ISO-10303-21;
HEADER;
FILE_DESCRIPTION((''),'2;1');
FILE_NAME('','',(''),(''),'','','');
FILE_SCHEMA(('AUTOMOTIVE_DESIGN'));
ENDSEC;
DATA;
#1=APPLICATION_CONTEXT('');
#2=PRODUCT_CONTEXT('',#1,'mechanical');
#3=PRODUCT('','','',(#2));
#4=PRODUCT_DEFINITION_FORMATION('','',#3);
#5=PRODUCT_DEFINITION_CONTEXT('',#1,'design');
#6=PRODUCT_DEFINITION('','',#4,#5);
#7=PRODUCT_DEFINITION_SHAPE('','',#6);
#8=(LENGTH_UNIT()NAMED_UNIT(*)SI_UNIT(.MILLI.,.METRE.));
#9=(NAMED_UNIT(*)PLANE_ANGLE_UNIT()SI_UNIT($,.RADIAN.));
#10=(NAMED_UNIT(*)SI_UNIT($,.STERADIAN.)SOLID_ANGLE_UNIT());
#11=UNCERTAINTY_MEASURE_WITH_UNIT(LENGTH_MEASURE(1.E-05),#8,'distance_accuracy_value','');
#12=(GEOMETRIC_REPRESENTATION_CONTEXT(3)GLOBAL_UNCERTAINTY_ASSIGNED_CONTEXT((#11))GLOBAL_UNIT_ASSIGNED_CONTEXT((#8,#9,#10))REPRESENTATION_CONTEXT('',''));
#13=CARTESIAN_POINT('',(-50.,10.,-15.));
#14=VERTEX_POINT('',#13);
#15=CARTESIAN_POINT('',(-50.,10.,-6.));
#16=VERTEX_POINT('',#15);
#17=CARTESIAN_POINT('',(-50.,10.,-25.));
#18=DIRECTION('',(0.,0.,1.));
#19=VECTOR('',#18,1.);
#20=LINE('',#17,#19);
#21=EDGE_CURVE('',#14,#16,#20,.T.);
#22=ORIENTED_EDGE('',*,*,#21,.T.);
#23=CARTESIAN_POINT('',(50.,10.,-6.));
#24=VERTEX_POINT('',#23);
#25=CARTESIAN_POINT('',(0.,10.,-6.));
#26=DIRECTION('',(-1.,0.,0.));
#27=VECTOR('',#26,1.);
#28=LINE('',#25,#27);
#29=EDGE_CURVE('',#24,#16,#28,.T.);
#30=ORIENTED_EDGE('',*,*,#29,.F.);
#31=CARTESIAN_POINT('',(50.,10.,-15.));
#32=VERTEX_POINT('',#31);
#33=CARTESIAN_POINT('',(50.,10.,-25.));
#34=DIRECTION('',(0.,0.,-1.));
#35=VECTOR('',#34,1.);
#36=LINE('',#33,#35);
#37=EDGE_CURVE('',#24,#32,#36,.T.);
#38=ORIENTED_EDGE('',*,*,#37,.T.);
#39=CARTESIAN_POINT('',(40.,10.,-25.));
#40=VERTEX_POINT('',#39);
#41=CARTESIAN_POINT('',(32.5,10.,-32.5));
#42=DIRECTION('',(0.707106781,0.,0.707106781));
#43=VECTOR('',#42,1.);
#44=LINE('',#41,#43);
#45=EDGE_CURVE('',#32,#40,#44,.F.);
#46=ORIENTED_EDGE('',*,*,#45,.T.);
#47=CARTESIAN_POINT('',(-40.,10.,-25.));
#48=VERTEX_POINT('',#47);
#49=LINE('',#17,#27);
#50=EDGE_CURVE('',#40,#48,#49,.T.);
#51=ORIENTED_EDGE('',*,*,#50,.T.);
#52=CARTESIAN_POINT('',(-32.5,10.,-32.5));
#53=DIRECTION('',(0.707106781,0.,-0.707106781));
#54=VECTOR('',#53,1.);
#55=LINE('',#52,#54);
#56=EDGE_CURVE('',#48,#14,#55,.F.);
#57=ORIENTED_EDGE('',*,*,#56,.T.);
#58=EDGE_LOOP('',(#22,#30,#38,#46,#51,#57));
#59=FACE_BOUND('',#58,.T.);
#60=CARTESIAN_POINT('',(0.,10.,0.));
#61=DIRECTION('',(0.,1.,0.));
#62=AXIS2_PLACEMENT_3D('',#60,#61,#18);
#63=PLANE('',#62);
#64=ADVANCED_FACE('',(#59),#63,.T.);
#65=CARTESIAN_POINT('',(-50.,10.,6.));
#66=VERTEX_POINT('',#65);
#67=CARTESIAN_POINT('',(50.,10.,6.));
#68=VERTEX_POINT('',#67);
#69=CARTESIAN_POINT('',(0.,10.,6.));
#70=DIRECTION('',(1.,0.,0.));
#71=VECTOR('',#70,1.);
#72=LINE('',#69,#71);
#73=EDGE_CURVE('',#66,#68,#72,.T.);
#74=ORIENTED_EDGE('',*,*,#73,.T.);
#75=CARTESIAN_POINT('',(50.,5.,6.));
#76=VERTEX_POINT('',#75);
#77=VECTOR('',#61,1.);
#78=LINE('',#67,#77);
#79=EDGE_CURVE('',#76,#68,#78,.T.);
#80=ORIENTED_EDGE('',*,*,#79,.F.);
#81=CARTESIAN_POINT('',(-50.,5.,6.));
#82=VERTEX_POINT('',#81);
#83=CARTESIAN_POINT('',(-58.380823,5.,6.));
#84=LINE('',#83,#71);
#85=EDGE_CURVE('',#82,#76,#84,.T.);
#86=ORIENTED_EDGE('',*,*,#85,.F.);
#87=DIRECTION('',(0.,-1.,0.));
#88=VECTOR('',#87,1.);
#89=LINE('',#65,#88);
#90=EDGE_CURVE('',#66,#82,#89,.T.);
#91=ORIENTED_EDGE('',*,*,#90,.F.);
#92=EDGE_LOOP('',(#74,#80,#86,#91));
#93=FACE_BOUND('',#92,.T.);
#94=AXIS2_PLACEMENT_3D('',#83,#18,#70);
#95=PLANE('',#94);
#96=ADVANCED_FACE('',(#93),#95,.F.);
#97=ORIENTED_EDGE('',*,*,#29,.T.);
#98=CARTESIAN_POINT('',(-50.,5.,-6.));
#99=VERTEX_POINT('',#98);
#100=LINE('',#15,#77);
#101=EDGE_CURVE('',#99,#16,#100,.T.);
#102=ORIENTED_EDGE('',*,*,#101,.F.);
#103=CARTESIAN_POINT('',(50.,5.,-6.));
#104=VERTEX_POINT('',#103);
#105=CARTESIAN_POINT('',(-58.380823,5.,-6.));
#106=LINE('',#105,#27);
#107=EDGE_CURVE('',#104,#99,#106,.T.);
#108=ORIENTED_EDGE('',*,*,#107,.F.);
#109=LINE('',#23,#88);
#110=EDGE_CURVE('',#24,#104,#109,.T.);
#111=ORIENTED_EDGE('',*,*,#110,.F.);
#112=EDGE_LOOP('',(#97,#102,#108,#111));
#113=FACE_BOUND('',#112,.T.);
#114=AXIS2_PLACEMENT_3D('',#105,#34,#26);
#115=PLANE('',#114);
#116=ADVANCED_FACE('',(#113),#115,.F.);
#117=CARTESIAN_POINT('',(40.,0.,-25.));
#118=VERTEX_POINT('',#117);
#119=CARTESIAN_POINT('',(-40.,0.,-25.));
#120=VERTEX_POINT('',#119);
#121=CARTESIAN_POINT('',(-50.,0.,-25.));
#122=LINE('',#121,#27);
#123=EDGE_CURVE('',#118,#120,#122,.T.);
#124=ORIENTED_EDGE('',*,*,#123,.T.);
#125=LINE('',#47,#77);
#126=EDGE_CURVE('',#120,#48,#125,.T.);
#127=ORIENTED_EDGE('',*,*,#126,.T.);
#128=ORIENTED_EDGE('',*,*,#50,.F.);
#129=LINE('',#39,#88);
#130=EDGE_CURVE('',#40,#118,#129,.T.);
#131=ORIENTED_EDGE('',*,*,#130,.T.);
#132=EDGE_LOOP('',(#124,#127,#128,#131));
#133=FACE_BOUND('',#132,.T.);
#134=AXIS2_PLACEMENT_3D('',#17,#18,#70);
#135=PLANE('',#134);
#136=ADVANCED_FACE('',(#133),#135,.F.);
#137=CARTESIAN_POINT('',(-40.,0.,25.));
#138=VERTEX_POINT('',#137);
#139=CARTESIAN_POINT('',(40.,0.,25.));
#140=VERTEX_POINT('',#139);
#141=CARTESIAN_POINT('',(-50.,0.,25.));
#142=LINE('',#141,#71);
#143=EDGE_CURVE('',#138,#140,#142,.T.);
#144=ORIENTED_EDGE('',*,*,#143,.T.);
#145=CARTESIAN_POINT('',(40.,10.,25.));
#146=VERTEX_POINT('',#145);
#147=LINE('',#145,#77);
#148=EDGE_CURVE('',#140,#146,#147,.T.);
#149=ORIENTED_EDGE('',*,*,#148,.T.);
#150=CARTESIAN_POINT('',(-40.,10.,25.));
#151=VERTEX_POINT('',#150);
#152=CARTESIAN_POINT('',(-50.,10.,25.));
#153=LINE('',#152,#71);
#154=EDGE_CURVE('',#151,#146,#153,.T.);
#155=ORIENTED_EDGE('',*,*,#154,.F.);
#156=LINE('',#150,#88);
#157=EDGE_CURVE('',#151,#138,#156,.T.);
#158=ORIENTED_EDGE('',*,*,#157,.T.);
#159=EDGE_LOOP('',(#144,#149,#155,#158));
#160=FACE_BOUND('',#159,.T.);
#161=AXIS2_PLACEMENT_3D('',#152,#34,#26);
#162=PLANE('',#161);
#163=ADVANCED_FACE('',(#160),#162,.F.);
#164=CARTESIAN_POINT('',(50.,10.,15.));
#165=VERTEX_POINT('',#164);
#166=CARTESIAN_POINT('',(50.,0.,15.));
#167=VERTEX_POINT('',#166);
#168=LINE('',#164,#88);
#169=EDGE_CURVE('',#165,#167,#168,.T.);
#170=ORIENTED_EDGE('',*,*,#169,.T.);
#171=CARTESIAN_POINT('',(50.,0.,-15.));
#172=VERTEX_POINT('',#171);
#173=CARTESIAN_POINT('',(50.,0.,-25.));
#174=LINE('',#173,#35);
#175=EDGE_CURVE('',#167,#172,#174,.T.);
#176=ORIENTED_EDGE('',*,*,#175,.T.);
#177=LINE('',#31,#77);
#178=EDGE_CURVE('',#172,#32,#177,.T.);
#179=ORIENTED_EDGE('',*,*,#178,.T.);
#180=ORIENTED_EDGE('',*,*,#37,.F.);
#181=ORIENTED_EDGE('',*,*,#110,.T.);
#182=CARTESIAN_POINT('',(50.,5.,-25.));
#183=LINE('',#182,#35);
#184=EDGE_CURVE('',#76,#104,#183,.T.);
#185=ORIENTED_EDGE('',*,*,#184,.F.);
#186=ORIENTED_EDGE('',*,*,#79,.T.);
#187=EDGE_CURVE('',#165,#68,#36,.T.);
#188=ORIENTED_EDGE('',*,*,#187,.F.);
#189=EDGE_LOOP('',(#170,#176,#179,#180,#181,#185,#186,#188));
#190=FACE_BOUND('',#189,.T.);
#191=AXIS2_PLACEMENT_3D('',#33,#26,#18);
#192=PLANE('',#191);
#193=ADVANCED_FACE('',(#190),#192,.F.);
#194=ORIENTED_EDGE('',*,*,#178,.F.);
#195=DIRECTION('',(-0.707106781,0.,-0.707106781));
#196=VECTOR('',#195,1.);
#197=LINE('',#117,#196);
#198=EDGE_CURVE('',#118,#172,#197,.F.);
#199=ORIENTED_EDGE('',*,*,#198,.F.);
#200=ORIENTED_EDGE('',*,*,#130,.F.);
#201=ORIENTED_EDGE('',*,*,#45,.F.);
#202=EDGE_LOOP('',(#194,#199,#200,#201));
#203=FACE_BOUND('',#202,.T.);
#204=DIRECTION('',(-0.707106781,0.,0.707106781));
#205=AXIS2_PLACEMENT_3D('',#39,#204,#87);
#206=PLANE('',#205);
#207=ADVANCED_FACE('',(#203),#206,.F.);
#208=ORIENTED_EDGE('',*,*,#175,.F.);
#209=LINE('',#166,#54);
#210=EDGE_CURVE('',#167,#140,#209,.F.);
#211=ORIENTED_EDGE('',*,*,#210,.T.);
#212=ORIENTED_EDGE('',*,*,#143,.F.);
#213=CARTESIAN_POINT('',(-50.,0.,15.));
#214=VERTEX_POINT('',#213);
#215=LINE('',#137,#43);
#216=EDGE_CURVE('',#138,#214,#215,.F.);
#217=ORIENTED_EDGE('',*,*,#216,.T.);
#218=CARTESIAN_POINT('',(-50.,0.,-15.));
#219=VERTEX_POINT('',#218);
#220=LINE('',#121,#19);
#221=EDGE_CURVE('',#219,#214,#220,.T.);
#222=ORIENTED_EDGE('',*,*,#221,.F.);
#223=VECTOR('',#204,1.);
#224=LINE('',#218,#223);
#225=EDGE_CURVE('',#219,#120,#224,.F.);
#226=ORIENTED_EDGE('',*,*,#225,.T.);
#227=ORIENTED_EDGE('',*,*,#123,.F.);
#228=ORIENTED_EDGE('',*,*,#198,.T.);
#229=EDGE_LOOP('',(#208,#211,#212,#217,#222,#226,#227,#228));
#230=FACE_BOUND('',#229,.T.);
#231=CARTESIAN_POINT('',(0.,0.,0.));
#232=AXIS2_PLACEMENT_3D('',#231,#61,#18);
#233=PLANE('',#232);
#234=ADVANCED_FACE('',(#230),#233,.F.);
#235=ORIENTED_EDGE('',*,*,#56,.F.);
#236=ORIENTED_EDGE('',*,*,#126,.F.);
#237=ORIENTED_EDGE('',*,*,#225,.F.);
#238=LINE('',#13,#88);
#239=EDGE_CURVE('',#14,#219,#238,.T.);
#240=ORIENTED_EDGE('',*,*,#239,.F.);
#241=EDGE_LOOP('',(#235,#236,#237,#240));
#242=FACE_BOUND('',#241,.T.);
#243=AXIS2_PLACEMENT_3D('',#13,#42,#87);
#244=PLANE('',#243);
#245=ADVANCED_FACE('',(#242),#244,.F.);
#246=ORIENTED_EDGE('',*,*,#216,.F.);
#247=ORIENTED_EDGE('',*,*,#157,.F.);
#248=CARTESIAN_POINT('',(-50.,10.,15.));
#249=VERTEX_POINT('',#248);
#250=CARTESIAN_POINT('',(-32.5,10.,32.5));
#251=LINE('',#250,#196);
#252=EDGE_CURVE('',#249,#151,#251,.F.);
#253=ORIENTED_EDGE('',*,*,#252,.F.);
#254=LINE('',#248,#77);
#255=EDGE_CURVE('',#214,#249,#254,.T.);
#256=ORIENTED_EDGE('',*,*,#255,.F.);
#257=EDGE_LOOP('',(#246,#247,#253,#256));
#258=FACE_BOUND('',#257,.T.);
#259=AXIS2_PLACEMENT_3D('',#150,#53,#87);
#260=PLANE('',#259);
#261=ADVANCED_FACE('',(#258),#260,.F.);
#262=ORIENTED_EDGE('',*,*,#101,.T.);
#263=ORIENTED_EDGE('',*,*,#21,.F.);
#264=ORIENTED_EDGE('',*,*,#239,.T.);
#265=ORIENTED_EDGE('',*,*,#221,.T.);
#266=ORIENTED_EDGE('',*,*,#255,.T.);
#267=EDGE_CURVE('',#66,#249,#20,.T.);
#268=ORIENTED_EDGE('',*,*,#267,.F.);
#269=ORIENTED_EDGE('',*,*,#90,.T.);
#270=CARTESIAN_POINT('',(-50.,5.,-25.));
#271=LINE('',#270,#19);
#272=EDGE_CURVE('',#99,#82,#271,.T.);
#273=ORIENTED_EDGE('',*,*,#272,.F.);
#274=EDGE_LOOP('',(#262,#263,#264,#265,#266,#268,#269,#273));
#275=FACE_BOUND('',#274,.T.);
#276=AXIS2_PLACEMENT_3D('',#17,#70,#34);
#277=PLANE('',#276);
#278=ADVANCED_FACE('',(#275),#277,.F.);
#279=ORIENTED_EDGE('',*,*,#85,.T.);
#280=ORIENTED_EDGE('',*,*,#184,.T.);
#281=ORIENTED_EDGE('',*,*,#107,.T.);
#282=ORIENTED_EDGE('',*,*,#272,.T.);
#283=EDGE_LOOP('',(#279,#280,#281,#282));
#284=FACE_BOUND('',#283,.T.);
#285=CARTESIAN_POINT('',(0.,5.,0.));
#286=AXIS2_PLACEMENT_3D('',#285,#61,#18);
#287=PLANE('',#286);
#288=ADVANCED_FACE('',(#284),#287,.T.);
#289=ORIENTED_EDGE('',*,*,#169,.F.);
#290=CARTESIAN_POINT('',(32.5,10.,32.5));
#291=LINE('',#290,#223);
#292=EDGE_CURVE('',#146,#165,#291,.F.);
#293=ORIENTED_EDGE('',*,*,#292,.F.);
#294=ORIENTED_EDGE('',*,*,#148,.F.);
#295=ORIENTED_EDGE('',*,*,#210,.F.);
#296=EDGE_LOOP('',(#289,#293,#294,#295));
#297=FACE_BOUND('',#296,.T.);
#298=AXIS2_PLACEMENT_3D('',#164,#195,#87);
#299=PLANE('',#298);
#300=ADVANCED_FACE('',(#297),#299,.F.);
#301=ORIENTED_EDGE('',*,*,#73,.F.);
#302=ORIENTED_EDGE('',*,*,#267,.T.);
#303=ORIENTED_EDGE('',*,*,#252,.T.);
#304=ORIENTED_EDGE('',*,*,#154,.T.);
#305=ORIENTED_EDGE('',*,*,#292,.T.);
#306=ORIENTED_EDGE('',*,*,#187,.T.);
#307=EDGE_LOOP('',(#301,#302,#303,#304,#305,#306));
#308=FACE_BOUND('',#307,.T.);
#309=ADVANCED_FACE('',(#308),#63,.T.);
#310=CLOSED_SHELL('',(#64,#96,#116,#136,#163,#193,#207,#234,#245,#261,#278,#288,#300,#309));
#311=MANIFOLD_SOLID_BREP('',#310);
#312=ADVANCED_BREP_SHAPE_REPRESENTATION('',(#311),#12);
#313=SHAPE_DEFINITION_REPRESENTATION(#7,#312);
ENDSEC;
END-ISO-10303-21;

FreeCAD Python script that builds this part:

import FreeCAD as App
import Part
import Sketcher

V = App.Vector
Q = App.Units.Quantity


def edges_at(feature, points):
    """Names of the edges that pass closest to the given points."""
    edges = feature.Shape.Edges
    near = lambda p: min(range(len(edges)), key=lambda i: edges[i].distToShape(Part.Vertex(*p))[0])
    return sorted({f"Edge{near(p) + 1}" for p in points})

doc = App.newDocument("Part")
body = doc.addObject("PartDesign::Body", "Body")

sketch1 = doc.addObject("Sketcher::SketchObject", "Sketch")
body.addObject(sketch1)
sketch1.AttachmentSupport = (doc.XZ_Plane, [""])
sketch1.MapMode = "FlatFace"
sketch1.addGeometry([
    Part.LineSegment(V(-50, -25, 0), V(-50, 25, 0)),
    Part.LineSegment(V(-50, 25, 0), V(50, 25, 0)),
    Part.LineSegment(V(50, 25, 0), V(50, -25, 0)),
    Part.LineSegment(V(50, -25, 0), V(-50, -25, 0)),
], False)
sketch1.addConstraint([
    Sketcher.Constraint("Coincident", 0, 2, 1, 1),
    Sketcher.Constraint("Coincident", 1, 2, 2, 1),
    Sketcher.Constraint("Coincident", 2, 2, 3, 1),
    Sketcher.Constraint("Coincident", 3, 2, 0, 1),
    Sketcher.Constraint("Vertical", 0),
    Sketcher.Constraint("Horizontal", 1),
    Sketcher.Constraint("Vertical", 2),
    Sketcher.Constraint("Horizontal", 3),
    Sketcher.Constraint("Symmetric", 0, 2, 2, 2, -1, 1),
    Sketcher.Constraint("DistanceX", 1, 1, 1, 2, Q("100 mm")),
    Sketcher.Constraint("DistanceY", 0, 1, 0, 2, Q("50 mm")),
])
pad1 = doc.addObject("PartDesign::Pad", "Pad")
body.addObject(pad1)
pad1.Profile = sketch1
pad1.Length = 10
pad1.Reversed = True
doc.recompute()

chamfer = doc.addObject("PartDesign::Chamfer", "Chamfer")
body.addObject(chamfer)
chamfer.Base = (pad1, edges_at(pad1, [
    (-50, 5, -25),
    (50, 5, -25),
    (50, 5, 25),
    (-50, 5, 25),
]))
chamfer.Size = 10

sketch2 = doc.addObject("Sketcher::SketchObject", "Sketch001")
body.addObject(sketch2)
sketch2.AttachmentSupport = (doc.XZ_Plane, [""])
sketch2.MapMode = "FlatFace"
sketch2.AttachmentOffset = App.Placement(V(0, 0, -10), App.Rotation())
sketch2.addGeometry([
    Part.LineSegment(V(-58.380823, -6, 0), V(-58.380823, 6, 0)),
    Part.LineSegment(V(-58.380823, 6, 0), V(54.784902, 6, 0)),
    Part.LineSegment(V(54.784902, 6, 0), V(54.784902, -6, 0)),
    Part.LineSegment(V(54.784902, -6, 0), V(-58.380823, -6, 0)),
], False)
sketch2.addConstraint([
    Sketcher.Constraint("Coincident", 0, 2, 1, 1),
    Sketcher.Constraint("Coincident", 1, 2, 2, 1),
    Sketcher.Constraint("Coincident", 2, 2, 3, 1),
    Sketcher.Constraint("Coincident", 3, 2, 0, 1),
    Sketcher.Constraint("Vertical", 0),
    Sketcher.Constraint("Horizontal", 1),
    Sketcher.Constraint("Vertical", 2),
    Sketcher.Constraint("Horizontal", 3),
    Sketcher.Constraint("DistanceY", 0, 1, 0, 2, Q("12 mm")),
    Sketcher.Constraint("DistanceY", -1, 1, 0, 2, Q("6 mm")),
    Sketcher.Constraint("DistanceX", 1, 1, 1, 2, Q("113.165725 mm")),
    Sketcher.Constraint("DistanceX", 0, 2, -1, 1, Q("58.380823 mm")),
])
pocket1 = doc.addObject("PartDesign::Pocket", "Pocket")
body.addObject(pocket1)
pocket1.Profile = sketch2
pocket1.Length = 5
pocket1.Reversed = True

doc.recompute()
